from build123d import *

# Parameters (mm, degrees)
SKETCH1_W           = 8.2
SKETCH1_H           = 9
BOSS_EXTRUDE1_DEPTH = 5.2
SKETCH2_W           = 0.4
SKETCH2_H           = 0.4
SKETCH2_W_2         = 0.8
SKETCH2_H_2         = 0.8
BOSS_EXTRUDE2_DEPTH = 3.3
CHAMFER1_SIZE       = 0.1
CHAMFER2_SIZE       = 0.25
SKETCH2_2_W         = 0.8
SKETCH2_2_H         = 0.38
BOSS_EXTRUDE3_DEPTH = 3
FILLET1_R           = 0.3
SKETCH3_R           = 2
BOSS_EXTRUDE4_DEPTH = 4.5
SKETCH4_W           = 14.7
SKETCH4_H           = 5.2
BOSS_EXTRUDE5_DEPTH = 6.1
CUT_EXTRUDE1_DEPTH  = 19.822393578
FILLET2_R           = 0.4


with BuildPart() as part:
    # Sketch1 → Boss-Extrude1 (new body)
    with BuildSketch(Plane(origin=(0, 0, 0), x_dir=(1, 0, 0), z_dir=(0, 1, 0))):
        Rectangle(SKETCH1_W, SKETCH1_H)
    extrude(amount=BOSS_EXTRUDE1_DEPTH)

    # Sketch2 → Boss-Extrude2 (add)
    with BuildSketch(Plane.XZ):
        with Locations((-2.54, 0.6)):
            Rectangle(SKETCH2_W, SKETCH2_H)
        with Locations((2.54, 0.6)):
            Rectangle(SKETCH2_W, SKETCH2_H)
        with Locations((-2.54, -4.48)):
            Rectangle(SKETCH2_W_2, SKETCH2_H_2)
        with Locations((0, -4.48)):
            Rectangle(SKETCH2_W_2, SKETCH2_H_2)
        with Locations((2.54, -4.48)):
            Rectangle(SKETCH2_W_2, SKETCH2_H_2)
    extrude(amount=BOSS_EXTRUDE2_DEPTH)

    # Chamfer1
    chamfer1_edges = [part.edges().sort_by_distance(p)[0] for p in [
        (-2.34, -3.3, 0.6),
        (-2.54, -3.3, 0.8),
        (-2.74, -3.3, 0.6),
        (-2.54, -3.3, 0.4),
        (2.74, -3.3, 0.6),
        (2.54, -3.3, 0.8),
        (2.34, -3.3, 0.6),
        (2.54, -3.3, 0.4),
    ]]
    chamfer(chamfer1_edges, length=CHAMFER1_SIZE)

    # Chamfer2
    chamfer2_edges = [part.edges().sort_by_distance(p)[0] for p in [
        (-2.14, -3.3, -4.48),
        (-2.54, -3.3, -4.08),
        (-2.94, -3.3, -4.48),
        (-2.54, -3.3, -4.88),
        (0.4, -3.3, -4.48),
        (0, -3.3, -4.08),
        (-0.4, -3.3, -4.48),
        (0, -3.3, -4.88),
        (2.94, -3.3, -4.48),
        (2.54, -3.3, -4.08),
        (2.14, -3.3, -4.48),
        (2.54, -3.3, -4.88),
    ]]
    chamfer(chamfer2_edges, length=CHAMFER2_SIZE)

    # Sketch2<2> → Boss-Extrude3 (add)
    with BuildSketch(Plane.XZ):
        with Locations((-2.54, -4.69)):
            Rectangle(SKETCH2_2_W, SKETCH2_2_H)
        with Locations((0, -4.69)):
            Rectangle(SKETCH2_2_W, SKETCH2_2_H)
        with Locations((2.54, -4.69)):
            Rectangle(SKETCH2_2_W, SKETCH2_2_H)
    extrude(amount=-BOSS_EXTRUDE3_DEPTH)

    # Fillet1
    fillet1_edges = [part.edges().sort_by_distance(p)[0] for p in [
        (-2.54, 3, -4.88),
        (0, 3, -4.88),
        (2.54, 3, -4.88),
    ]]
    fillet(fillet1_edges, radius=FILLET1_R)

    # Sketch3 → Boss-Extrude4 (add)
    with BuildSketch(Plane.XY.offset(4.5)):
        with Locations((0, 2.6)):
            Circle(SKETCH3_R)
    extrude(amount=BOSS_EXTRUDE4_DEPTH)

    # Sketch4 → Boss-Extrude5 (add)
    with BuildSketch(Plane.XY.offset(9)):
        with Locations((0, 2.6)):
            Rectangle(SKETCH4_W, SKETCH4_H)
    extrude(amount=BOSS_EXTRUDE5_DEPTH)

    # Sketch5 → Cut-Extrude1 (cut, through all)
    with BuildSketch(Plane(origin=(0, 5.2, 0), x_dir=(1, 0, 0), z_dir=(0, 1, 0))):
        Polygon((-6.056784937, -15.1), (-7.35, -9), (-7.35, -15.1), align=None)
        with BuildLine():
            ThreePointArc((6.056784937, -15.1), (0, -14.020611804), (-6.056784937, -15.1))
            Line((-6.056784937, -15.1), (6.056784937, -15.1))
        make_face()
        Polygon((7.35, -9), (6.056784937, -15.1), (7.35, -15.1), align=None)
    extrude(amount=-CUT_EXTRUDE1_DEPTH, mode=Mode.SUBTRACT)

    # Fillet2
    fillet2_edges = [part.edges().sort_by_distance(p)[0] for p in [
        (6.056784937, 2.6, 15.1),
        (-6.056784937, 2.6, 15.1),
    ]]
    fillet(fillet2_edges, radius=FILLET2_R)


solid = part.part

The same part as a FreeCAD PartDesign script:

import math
import FreeCAD as App
import Part
import Sketcher

V = App.Vector
Q = App.Units.Quantity


def edges_at(feature, points):
    """Names of the edges that pass closest to the given points."""
    edges = feature.Shape.Edges
    near = lambda p: min(range(len(edges)), key=lambda i: edges[i].distToShape(Part.Vertex(*p))[0])
    return sorted({f"Edge{near(p) + 1}" for p in points})


def add_polygon(sketch, points):
    """Adds a closed chain of lines whose ends are joined by coincident constraints."""
    first, n = sketch.GeometryCount, len(points)
    for a, b in zip(points, points[1:] + points[:1]):
        sketch.addGeometry(Part.LineSegment(App.Vector(*a, 0), App.Vector(*b, 0)), False)
    for i in range(n):
        sketch.addConstraint(Sketcher.Constraint("Coincident", first + i, 2, first + (i + 1) % n, 1))

doc = App.newDocument("Part")
body = doc.addObject("PartDesign::Body", "Body")

# Sketch on XZ plane
sketch1 = body.newObject("Sketcher::SketchObject", "Sketch")
sketch1.AttachmentSupport = (doc.getObject("XZ_Plane"), [""])
sketch1.MapMode = "FlatFace"
add_polygon(sketch1, [(-4, -4), (-4, 4), (4, 4), (4, -4)])  # lines 0-3
sketch1.addConstraint(Sketcher.Constraint("Vertical", 0))
sketch1.addConstraint(Sketcher.Constraint("Horizontal", 1))
sketch1.addConstraint(Sketcher.Constraint("Vertical", 2))
sketch1.addConstraint(Sketcher.Constraint("Horizontal", 3))
sketch1.addConstraint(Sketcher.Constraint("Symmetric", 0, 2, 2, 2, -1, 1))
sketch1.addConstraint(Sketcher.Constraint("DistanceY", 0, 1, 0, 2, Q("9 mm")))
sketch1.addConstraint(Sketcher.Constraint("DistanceX", 1, 1, 1, 2, Q("8.2 mm")))
pad1 = body.newObject("PartDesign::Pad", "Pad")
pad1.Profile = sketch1
pad1.Length = 5.2
pad1.Reversed = True

# Sketch on XZ plane
sketch2 = body.newObject("Sketcher::SketchObject", "Sketch001")
sketch2.AttachmentSupport = (doc.getObject("XZ_Plane"), [""])
sketch2.MapMode = "FlatFace"
add_polygon(sketch2, [(-2.74, 0.8), (-2.74, 0.4), (-2.34, 0.4), (-2.34, 0.8)])  # lines 0-3
add_polygon(sketch2, [(2.34, 0.8), (2.34, 0.4), (2.74, 0.4), (2.74, 0.8)])  # lines 4-7
add_polygon(sketch2, [(-2.94, -4.08), (-2.94, -4.88), (-2.14, -4.88), (-2.14, -4.08)])  # lines 8-11
add_polygon(sketch2, [(-0.4, -4.08), (-0.4, -4.88), (0.4, -4.88), (0.4, -4.08)])  # lines 12-15
add_polygon(sketch2, [(2.14, -4.08), (2.14, -4.88), (2.94, -4.88), (2.94, -4.08)])  # lines 16-19
sketch2.addConstraint(Sketcher.Constraint("Vertical", 0))
sketch2.addConstraint(Sketcher.Constraint("Horizontal", 1))
sketch2.addConstraint(Sketcher.Constraint("Vertical", 2))
sketch2.addConstraint(Sketcher.Constraint("Horizontal", 3))
sketch2.addConstraint(Sketcher.Constraint("Vertical", 4))
sketch2.addConstraint(Sketcher.Constraint("Horizontal", 5))
sketch2.addConstraint(Sketcher.Constraint("Vertical", 6))
sketch2.addConstraint(Sketcher.Constraint("Horizontal", 7))
sketch2.addConstraint(Sketcher.Constraint("Vertical", 8))
sketch2.addConstraint(Sketcher.Constraint("Horizontal", 9))
sketch2.addConstraint(Sketcher.Constraint("Vertical", 10))
sketch2.addConstraint(Sketcher.Constraint("Horizontal", 11))
sketch2.addConstraint(Sketcher.Constraint("Vertical", 12))
sketch2.addConstraint(Sketcher.Constraint("Horizontal", 13))
sketch2.addConstraint(Sketcher.Constraint("Vertical", 14))
sketch2.addConstraint(Sketcher.Constraint("Horizontal", 15))
sketch2.addConstraint(Sketcher.Constraint("Vertical", 16))
sketch2.addConstraint(Sketcher.Constraint("Horizontal", 17))
sketch2.addConstraint(Sketcher.Constraint("Vertical", 18))
sketch2.addConstraint(Sketcher.Constraint("Horizontal", 19))
sketch2.addConstraint(Sketcher.Constraint("Symmetric", 1, 2, 4, 2, -2))
sketch2.addConstraint(Sketcher.Constraint("Symmetric", 3, 2, 6, 2, -2))
sketch2.addConstraint(Sketcher.Constraint("Symmetric", 9, 2, 16, 2, -2))
sketch2.addConstraint(Sketcher.Constraint("Symmetric", 11, 2, 18, 2, -2))
sketch2.addConstraint(Sketcher.Constraint("Horizontal", 9, 2, 12, 2))
sketch2.addConstraint(Sketcher.Constraint("Horizontal", 11, 2, 14, 2))
sketch2.addConstraint(Sketcher.Constraint("Equal", 11, 13))
sketch2.addConstraint(Sketcher.Constraint("Equal", 7, 0))
sketch2.addConstraint(Sketcher.Constraint("Equal", 19, 8))
sketch2.addConstraint(Sketcher.Constraint("DistanceX", 1, 1, 1, 2, Q("0.4 mm")))
sketch2.addConstraint(Sketcher.Constraint("DistanceX", 9, 1, 9, 2, Q("0.8 mm")))
sketch2.addConstraint(Sketcher.Constraint("DistanceY", -1, 1, 0, 2, Q("0.4 mm")))
sketch2.addConstraint(Sketcher.Constraint("DistanceX", 12, 2, -1, 1, Q("0.4 mm")))
sketch2.addConstraint(Sketcher.Constraint("DistanceX", 8, 2, 0, 2, Q("0.2 mm")))
sketch2.addConstraint(Sketcher.Constraint("DistanceX", 0, 2, -1, 1, Q("2.74 mm")))
sketch2.addConstraint(Sketcher.Constraint("DistanceY", 8, 2, -1, 1, Q("4.88 mm")))
pad2 = body.newObject("PartDesign::Pad", "Pad001")
pad2.Profile = sketch2
pad2.Length = 3.3
doc.recompute()

chamfer = body.newObject("PartDesign::Chamfer", "Chamfer")
chamfer.Base = (pad2, edges_at(pad2, [
    (-2.34, -3.3, 0.6),
    (-2.54, -3.3, 0.8),
    (-2.74, -3.3, 0.6),
    (-2.54, -3.3, 0.4),
    (2.74, -3.3, 0.6),
    (2.54, -3.3, 0.8),
    (2.34, -3.3, 0.6),
    (2.54, -3.3, 0.4),
]))
chamfer.Size = 0.1
doc.recompute()

chamfer2 = body.newObject("PartDesign::Chamfer", "Chamfer001")
chamfer2.Base = (chamfer, edges_at(chamfer, [
    (-2.14, -3.3, -4.48),
    (-2.54, -3.3, -4.08),
    (-2.94, -3.3, -4.48),
    (-2.54, -3.3, -4.88),
    (0.4, -3.3, -4.48),
    (0, -3.3, -4.08),
    (-0.4, -3.3, -4.48),
    (0, -3.3, -4.88),
    (2.94, -3.3, -4.48),
    (2.54, -3.3, -4.08),
    (2.14, -3.3, -4.48),
    (2.54, -3.3, -4.88),
]))
chamfer2.Size = 0.25

# Sketch on XZ plane
sketch3 = body.newObject("Sketcher::SketchObject", "Sketch002")
sketch3.AttachmentSupport = (doc.getObject("XZ_Plane"), [""])
sketch3.MapMode = "FlatFace"
add_polygon(sketch3, [(-2.94, -4.5), (-2.94, -4.88), (-2.14, -4.88), (-2.14, -4.5)])  # lines 0-3
add_polygon(sketch3, [(-0.4, -4.5), (-0.4, -4.88), (0.4, -4.88), (0.4, -4.5)])  # lines 4-7
add_polygon(sketch3, [(2.14, -4.5), (2.14, -4.88), (2.94, -4.88), (2.94, -4.5)])  # lines 8-11
sketch3.addConstraint(Sketcher.Constraint("Vertical", 0))
sketch3.addConstraint(Sketcher.Constraint("Horizontal", 1))
sketch3.addConstraint(Sketcher.Constraint("Vertical", 2))
sketch3.addConstraint(Sketcher.Constraint("Horizontal", 3))
sketch3.addConstraint(Sketcher.Constraint("Vertical", 4))
sketch3.addConstraint(Sketcher.Constraint("Horizontal", 5))
sketch3.addConstraint(Sketcher.Constraint("Vertical", 6))
sketch3.addConstraint(Sketcher.Constraint("Horizontal", 7))
sketch3.addConstraint(Sketcher.Constraint("Vertical", 8))
sketch3.addConstraint(Sketcher.Constraint("Horizontal", 9))
sketch3.addConstraint(Sketcher.Constraint("Vertical", 10))
sketch3.addConstraint(Sketcher.Constraint("Horizontal", 11))
sketch3.addConstraint(Sketcher.Constraint("Symmetric", 1, 2, 8, 2, -2))
sketch3.addConstraint(Sketcher.Constraint("Symmetric", 3, 2, 10, 2, -2))
sketch3.addConstraint(Sketcher.Constraint("Horizontal", 1, 2, 4, 2))
sketch3.addConstraint(Sketcher.Constraint("Horizontal", 3, 2, 6, 2))
sketch3.addConstraint(Sketcher.Constraint("Equal", 3, 5))
sketch3.addConstraint(Sketcher.Constraint("DistanceX", 1, 1, 1, 2, Q("0.8 mm")))
sketch3.addConstraint(Sketcher.Constraint("DistanceY", 0, 2, 0, 1, Q("0.38 mm")))
sketch3.addConstraint(Sketcher.Constraint("DistanceY", 2, 2, -1, 1, Q("4.5 mm")))
sketch3.addConstraint(Sketcher.Constraint("DistanceX", 4, 2, -1, 1, Q("0.4 mm")))
sketch3.addConstraint(Sketcher.Constraint("DistanceX", 0, 2, -1, 1, Q("2.94 mm")))
pad3 = body.newObject("PartDesign::Pad", "Pad002")
pad3.Profile = sketch3
pad3.Length = 3
pad3.Reversed = True
doc.recompute()

fillet = body.newObject("PartDesign::Fillet", "Fillet")
fillet.Base = (pad3, edges_at(pad3, [(-2.54, 3, -4.88), (0, 3, -4.88), (2.54, 3, -4.88)]))
fillet.Radius = 0.3

# Sketch on XY plane
sketch4 = body.newObject("Sketcher::SketchObject", "Sketch003")
sketch4.AttachmentSupport = (doc.getObject("XY_Plane"), [""])
sketch4.MapMode = "FlatFace"
sketch4.AttachmentOffset = App.Placement(V(0, 0, 4.5), App.Rotation())
sketch4.addGeometry(Part.Circle(V(0, 2.6, 0), V(0, 0, 1), 2), False)
sketch4.addConstraint(Sketcher.Constraint("PointOnObject", 0, 3, -2))
sketch4.addConstraint(Sketcher.Constraint("Diameter", 0, Q("4 mm")))
sketch4.addConstraint(Sketcher.Constraint("DistanceY", -1, 1, 0, 3, Q("2.6 mm")))
pad4 = body.newObject("PartDesign::Pad", "Pad003")
pad4.Profile = sketch4
pad4.Length = 4.5

# Sketch on XY plane
sketch5 = body.newObject("Sketcher::SketchObject", "Sketch004")
sketch5.AttachmentSupport = (doc.getObject("XY_Plane"), [""])
sketch5.MapMode = "FlatFace"
sketch5.AttachmentOffset = App.Placement(V(0, 0, 9), App.Rotation())
add_polygon(sketch5, [(-7, 5), (-7, 0), (7, 0), (7, 5)])  # lines 0-3
sketch5.addConstraint(Sketcher.Constraint("Vertical", 0))
sketch5.addConstraint(Sketcher.Constraint("Horizontal", 1))
sketch5.addConstraint(Sketcher.Constraint("Vertical", 2))
sketch5.addConstraint(Sketcher.Constraint("Horizontal", 3))
sketch5.addConstraint(Sketcher.Constraint("Symmetric", 0, 2, 1, 2, -1, 1))
sketch5.addConstraint(Sketcher.Constraint("DistanceX", 1, 1, 1, 2, Q("14.7 mm")))
sketch5.addConstraint(Sketcher.Constraint("DistanceY", 0, 2, 0, 1, Q("5.2 mm")))
pad5 = body.newObject("PartDesign::Pad", "Pad004")
pad5.Profile = sketch5
pad5.Length = 6.1

# Sketch on XZ plane
sketch6 = body.newObject("Sketcher::SketchObject", "Sketch005")
sketch6.AttachmentSupport = (doc.getObject("XZ_Plane"), [""])
sketch6.MapMode = "FlatFace"
sketch6.AttachmentOffset = App.Placement(V(0, 0, -5.2), App.Rotation())
add_polygon(sketch6, [(-6.1, 15.1), (-7.3, 9), (-7.3, 15.1)])  # lines 0-2
sketch6.addGeometry(Part.ArcOfCircle(Part.Circle(V(0, 31.6, 0), V(0, 0, 1), 17.5), math.radians(-110), math.radians(-70)), False)  # 3
sketch6.addGeometry(Part.LineSegment(V(-6.1, 15.1, 0), V(6.1, 15.1, 0)), False)  # 4
add_polygon(sketch6, [(7.3, 9), (6.1, 15.1), (7.3, 15.1)])  # lines 5-7
sketch6.addConstraint(Sketcher.Constraint("Coincident", 3, 1, 4, 1))
sketch6.addConstraint(Sketcher.Constraint("Coincident", 4, 2, 3, 2))
sketch6.addConstraint(Sketcher.Constraint("Vertical", 1))
sketch6.addConstraint(Sketcher.Constraint("Horizontal", 2))
sketch6.addConstraint(Sketcher.Constraint("Horizontal", 4))
sketch6.addConstraint(Sketcher.Constraint("Horizontal", 6))
sketch6.addConstraint(Sketcher.Constraint("Vertical", 7))
sketch6.addConstraint(Sketcher.Constraint("Coincident", 3, 1, 2, 2))
sketch6.addConstraint(Sketcher.Constraint("Coincident", 5, 2, 4, 2))
sketch6.addConstraint(Sketcher.Constraint("Symmetric", 0, 2, 7, 2, -2))
sketch6.addConstraint(Sketcher.Constraint("PointOnObject", 3, 3, -2))
sketch6.addConstraint(Sketcher.Constraint("DistanceY", 1, 1, 1, 2, Q("6.1 mm")))
sketch6.addConstraint(Sketcher.Constraint("DistanceY", -1, 1, 0, 2, Q("9 mm")))
sketch6.addConstraint(Sketcher.Constraint("DistanceX", 1, 2, 6, 2, Q("14.7 mm")))
sketch6.addConstraint(Sketcher.Constraint("Radius", 3, Q("17.532952 mm")))
sketch6.addConstraint(Sketcher.Constraint("DistanceX", 4, 1, 4, 2, Q("12.11357 mm")))
pocket1 = body.newObject("PartDesign::Pocket", "Pocket")
pocket1.Profile = sketch6
pocket1.Type = "ThroughAll"
pocket1.Reversed = True
doc.recompute()

fillet2 = body.newObject("PartDesign::Fillet", "Fillet001")
fillet2.Base = (pocket1, edges_at(pocket1, [(6.057, 2.6, 15.1), (-6.057, 2.6, 15.1)]))
fillet2.Radius = 0.4

doc.recompute()
